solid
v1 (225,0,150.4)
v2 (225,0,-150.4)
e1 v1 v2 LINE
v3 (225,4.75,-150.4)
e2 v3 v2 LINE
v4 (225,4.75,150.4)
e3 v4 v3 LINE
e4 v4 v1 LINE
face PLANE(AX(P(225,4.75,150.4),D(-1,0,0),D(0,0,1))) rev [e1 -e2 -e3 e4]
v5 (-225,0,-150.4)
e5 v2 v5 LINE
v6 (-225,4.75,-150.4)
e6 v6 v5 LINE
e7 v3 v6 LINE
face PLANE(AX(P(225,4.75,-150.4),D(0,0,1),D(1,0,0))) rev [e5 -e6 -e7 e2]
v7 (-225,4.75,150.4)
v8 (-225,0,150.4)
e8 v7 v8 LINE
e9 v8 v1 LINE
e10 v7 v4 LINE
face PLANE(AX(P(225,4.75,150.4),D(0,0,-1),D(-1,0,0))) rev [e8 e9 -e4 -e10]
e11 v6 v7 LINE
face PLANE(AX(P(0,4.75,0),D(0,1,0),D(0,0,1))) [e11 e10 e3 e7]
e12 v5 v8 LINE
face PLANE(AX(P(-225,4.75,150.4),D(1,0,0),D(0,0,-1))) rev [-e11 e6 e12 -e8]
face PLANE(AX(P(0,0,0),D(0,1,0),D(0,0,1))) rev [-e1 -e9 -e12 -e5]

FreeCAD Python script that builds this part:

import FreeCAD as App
import Part
import Sketcher
from FreeCAD import Vector

doc = App.newDocument("Part")
body = doc.addObject("PartDesign::Body", "Body")

# Sketch on XZ plane
sketch1 = doc.addObject("Sketcher::SketchObject", "Sketch")
body.addObject(sketch1)
sketch1.AttachmentSupport = (doc.XZ_Plane, [""])
sketch1.MapMode = "FlatFace"
sketch1.addGeometry([
    Part.LineSegment(Vector(-225, -150, 0), Vector(-225, 150, 0)),
    Part.LineSegment(Vector(-225, 150, 0), Vector(225, 150, 0)),
    Part.LineSegment(Vector(225, 150, 0), Vector(225, -150, 0)),
    Part.LineSegment(Vector(225, -150, 0), Vector(-225, -150, 0)),
], False)
sketch1.addConstraint([
    Sketcher.Constraint("Coincident", 0, 2, 1, 1),
    Sketcher.Constraint("Coincident", 1, 2, 2, 1),
    Sketcher.Constraint("Coincident", 2, 2, 3, 1),
    Sketcher.Constraint("Coincident", 3, 2, 0, 1),
    Sketcher.Constraint("Vertical", 0),
    Sketcher.Constraint("Horizontal", 1),
    Sketcher.Constraint("Vertical", 2),
    Sketcher.Constraint("Horizontal", 3),
    Sketcher.Constraint("Symmetric", 0, 2, 2, 2, -1, 1),
    Sketcher.Constraint("DistanceX", 1, 1, 1, 2, 450.0),
    Sketcher.Constraint("DistanceY", 0, 1, 0, 2, 300.8),
])
pad1 = doc.addObject("PartDesign::Pad", "Pad")
body.addObject(pad1)
pad1.Profile = sketch1
pad1.Length = 4.75
pad1.Reversed = True

doc.recompute()
